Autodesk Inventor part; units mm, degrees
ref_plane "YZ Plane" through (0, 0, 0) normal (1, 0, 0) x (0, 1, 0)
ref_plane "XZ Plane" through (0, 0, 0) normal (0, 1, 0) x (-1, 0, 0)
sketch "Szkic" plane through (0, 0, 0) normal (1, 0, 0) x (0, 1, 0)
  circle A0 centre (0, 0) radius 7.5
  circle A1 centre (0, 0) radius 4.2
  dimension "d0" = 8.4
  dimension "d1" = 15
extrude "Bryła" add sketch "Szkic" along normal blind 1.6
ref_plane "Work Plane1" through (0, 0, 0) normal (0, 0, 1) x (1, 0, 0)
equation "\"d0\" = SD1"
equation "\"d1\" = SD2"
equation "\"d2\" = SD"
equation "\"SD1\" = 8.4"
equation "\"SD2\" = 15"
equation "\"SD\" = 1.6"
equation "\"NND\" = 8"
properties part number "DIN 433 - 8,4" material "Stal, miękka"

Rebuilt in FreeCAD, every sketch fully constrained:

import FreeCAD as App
import Part
import Sketcher

doc = App.newDocument("Part")
body = doc.addObject("PartDesign::Body", "Body")

sketch1 = doc.addObject("Sketcher::SketchObject", "Sketch")
body.addObject(sketch1)
sketch1.AttachmentSupport = (doc.YZ_Plane, [""])
sketch1.MapMode = "FlatFace"
sketch1.addGeometry(Part.Circle(App.Vector(0, 0, 0), App.Vector(0, 0, 1), 7.5), False)
sketch1.addGeometry(Part.Circle(App.Vector(0, 0, 0), App.Vector(0, 0, 1), 4.2), False)
sketch1.addConstraint(Sketcher.Constraint("Coincident", 0, 3, -1, 1))
sketch1.addConstraint(Sketcher.Constraint("Coincident", 1, 3, -1, 1))
sketch1.addConstraint(Sketcher.Constraint("Diameter", 0, 15.0))
sketch1.addConstraint(Sketcher.Constraint("Diameter", 1, 8.4))
pad1 = doc.addObject("PartDesign::Pad", "Pad")
body.addObject(pad1)
pad1.Profile = sketch1
pad1.Length = 1.6

doc.recompute()
